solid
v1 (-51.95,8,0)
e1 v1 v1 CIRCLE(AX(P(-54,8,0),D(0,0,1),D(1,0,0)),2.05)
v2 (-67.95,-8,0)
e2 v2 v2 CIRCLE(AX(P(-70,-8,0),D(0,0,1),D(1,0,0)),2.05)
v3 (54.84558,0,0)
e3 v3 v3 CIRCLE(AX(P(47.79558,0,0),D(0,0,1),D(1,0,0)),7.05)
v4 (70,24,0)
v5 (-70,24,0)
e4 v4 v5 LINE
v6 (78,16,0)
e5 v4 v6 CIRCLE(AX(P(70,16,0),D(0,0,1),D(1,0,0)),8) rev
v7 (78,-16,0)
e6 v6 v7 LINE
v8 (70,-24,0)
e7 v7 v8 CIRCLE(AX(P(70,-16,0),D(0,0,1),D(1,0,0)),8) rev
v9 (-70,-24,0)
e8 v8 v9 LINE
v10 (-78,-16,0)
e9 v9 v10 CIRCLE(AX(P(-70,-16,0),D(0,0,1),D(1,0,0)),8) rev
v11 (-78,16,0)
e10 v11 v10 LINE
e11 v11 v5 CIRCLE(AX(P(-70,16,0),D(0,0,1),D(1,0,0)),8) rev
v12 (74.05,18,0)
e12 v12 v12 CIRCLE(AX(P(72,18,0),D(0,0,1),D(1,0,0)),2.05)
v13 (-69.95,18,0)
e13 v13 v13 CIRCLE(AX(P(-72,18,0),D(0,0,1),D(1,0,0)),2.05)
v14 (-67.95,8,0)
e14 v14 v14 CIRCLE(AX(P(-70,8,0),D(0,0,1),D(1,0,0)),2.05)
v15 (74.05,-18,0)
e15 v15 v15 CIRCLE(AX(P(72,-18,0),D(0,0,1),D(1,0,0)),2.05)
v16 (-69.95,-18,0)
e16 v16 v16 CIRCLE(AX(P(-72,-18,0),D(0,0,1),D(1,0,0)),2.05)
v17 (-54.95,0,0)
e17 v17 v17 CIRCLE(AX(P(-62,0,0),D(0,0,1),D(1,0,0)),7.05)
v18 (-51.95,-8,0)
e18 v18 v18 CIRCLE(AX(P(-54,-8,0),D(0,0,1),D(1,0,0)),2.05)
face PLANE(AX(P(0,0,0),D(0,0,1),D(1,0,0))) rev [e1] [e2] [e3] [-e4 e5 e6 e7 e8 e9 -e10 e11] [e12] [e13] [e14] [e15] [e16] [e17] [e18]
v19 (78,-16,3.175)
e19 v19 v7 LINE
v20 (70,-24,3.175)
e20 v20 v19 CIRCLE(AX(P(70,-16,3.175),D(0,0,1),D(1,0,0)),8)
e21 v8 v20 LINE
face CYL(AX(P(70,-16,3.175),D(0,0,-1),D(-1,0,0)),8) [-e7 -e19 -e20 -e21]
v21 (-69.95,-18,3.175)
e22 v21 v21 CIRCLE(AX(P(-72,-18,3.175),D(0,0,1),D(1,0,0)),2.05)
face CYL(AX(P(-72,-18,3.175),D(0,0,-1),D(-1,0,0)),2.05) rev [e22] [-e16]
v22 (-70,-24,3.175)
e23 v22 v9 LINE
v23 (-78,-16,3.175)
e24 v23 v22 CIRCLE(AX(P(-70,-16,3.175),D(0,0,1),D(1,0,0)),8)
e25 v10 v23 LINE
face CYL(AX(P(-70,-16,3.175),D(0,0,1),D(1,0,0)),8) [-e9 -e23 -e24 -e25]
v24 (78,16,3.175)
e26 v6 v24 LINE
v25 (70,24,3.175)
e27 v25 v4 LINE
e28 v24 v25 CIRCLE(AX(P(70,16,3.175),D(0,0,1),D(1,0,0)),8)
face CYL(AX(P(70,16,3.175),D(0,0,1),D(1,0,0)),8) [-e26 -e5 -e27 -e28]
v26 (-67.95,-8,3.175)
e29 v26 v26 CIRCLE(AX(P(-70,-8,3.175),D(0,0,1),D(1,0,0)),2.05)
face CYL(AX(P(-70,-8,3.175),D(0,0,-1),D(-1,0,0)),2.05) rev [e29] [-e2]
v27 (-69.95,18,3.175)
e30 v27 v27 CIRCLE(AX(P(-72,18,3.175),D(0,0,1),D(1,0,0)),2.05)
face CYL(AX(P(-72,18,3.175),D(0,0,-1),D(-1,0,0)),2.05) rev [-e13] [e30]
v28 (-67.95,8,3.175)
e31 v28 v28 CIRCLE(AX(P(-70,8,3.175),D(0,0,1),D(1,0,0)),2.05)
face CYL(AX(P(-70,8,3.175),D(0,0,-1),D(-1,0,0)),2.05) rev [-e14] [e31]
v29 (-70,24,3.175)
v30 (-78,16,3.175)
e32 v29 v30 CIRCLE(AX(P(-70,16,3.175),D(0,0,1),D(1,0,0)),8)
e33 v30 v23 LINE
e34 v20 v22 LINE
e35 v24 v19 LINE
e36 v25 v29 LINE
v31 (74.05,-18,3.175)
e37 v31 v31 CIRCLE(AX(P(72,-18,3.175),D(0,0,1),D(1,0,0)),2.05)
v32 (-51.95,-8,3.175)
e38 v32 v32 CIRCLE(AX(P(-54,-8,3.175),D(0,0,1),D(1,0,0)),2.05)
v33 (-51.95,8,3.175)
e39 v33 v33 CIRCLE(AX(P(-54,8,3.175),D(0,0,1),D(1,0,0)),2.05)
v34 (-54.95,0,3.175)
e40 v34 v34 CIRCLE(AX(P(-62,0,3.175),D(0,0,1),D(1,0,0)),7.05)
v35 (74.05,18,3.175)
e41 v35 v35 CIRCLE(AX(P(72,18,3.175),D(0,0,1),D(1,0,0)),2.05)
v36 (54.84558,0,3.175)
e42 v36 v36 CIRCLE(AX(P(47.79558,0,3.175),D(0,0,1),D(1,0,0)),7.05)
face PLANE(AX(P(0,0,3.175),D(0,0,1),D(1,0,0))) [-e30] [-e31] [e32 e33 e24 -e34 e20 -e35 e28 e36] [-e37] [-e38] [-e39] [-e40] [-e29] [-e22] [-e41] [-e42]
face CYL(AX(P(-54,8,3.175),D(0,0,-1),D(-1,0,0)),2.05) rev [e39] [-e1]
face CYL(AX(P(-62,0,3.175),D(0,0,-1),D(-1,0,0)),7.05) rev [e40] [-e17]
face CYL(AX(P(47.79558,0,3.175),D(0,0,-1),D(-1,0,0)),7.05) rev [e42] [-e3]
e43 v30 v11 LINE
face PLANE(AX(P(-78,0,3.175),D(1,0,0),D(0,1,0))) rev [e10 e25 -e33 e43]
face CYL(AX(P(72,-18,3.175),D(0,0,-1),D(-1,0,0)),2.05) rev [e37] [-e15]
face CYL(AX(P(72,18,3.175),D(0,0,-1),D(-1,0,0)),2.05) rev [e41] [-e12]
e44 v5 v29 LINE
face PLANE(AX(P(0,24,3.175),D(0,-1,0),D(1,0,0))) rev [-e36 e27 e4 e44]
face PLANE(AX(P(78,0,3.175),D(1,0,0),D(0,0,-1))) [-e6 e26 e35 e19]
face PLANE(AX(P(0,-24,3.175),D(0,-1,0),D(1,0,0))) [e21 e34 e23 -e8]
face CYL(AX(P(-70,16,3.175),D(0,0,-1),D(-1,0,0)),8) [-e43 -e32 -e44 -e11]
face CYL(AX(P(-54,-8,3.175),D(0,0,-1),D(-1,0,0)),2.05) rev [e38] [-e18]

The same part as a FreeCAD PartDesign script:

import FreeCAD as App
import Part
import Sketcher

V = App.Vector
Q = App.Units.Quantity


def edges_at(feature, points):
    """Names of the edges that pass closest to the given points."""
    edges = feature.Shape.Edges
    near = lambda p: min(range(len(edges)), key=lambda i: edges[i].distToShape(Part.Vertex(*p))[0])
    return sorted({f"Edge{near(p) + 1}" for p in points})

doc = App.newDocument("Part")
body = doc.addObject("PartDesign::Body", "Body")

# Sketch on XY plane
sketch1 = doc.addObject("Sketcher::SketchObject", "Sketch")
body.addObject(sketch1)
sketch1.AttachmentSupport = (doc.XY_Plane, [""])
sketch1.MapMode = "FlatFace"
sketch1.addGeometry([
    Part.LineSegment(V(-78, 24, 0), V(-78, -24, 0)),  # 0
    Part.LineSegment(V(-78, -24, 0), V(78, -24, 0)),  # 1
    Part.LineSegment(V(78, -24, 0), V(78, 24, 0)),  # 2
    Part.LineSegment(V(78, 24, 0), V(-78, 24, 0)),  # 3
    Part.Circle(V(-72, -18, 0), V(0, 0, 1), 2.05),  # 4
    Part.Circle(V(-70, -8, 0), V(0, 0, 1), 2.05),  # 5
    Part.Circle(V(-54, -8, 0), V(0, 0, 1), 2.05),  # 6
    Part.Circle(V(72, -18, 0), V(0, 0, 1), 2.05),  # 7
    Part.Circle(V(-62, 0, 0), V(0, 0, 1), 7.05),  # 8
    Part.Circle(V(-70, 8, 0), V(0, 0, 1), 2.05),  # 9
    Part.Circle(V(-54, 8, 0), V(0, 0, 1), 2.05),  # 10
    Part.Circle(V(-72, 18, 0), V(0, 0, 1), 2.05),  # 11
    Part.Circle(V(47.79558, 0, 0), V(0, 0, 1), 7.05),  # 12
    Part.Circle(V(72, 18, 0), V(0, 0, 1), 2.05),  # 13
], False)
sketch1.addConstraint([
    Sketcher.Constraint("Coincident", 0, 2, 1, 1),
    Sketcher.Constraint("Coincident", 1, 2, 2, 1),
    Sketcher.Constraint("Coincident", 2, 2, 3, 1),
    Sketcher.Constraint("Coincident", 3, 2, 0, 1),
    Sketcher.Constraint("Vertical", 0),
    Sketcher.Constraint("Horizontal", 1),
    Sketcher.Constraint("Vertical", 2),
    Sketcher.Constraint("Horizontal", 3),
    Sketcher.Constraint("Equal", 4, 5),
    Sketcher.Constraint("Equal", 5, 6),
    Sketcher.Constraint("Equal", 6, 7),
    Sketcher.Constraint("Equal", 7, 9),
    Sketcher.Constraint("Equal", 9, 10),
    Sketcher.Constraint("Equal", 10, 11),
    Sketcher.Constraint("Equal", 8, 12),
    Sketcher.Constraint("Equal", 11, 13),
    Sketcher.Constraint("Symmetric", 7, 3, 11, 3, -1, 1),
    Sketcher.Constraint("Symmetric", 4, 3, 13, 3, -1, 1),
    Sketcher.Constraint("Symmetric", 0, 2, 2, 2, -1, 1),
    Sketcher.Constraint("Symmetric", 4, 3, 7, 3, -2),
    Sketcher.Constraint("Symmetric", 5, 3, 9, 3, -1),
    Sketcher.Constraint("Symmetric", 6, 3, 10, 3, -1),
    Sketcher.Constraint("PointOnObject", 8, 3, -1),
    Sketcher.Constraint("PointOnObject", 12, 3, -1),
    Sketcher.Constraint("Horizontal", 5, 3, 6, 3),
    Sketcher.Constraint("Diameter", 4, Q("4.1 mm")),
    Sketcher.Constraint("Diameter", 8, Q("14.1 mm")),
    Sketcher.Constraint("DistanceX", 1, 1, 1, 2, Q("156 mm")),
    Sketcher.Constraint("DistanceY", 0, 2, 0, 1, Q("48 mm")),
    Sketcher.Constraint("DistanceX", 4, 3, -1, 1, Q("72 mm")),
    Sketcher.Constraint("DistanceY", 4, 3, -1, 1, Q("18 mm")),
    Sketcher.Constraint("DistanceX", 5, 3, -1, 1, Q("70 mm")),
    Sketcher.Constraint("DistanceY", 5, 3, -1, 1, Q("8 mm")),
    Sketcher.Constraint("DistanceX", 6, 3, -1, 1, Q("54 mm")),
    Sketcher.Constraint("DistanceX", 8, 3, -1, 1, Q("62 mm")),
    Sketcher.Constraint("DistanceX", -1, 1, 12, 3, Q("47.79558 mm")),
])
pad1 = doc.addObject("PartDesign::Pad", "Pad")
body.addObject(pad1)
pad1.Profile = sketch1
pad1.Length = 3.175
doc.recompute()

fillet = doc.addObject("PartDesign::Fillet", "Fillet")
body.addObject(fillet)
fillet.Base = (pad1, edges_at(pad1, [
    (78, 24, 1.587),
    (78, -24, 1.587),
    (-78, -24, 1.587),
    (-78, 24, 1.587),
]))
fillet.Radius = 8

doc.recompute()
